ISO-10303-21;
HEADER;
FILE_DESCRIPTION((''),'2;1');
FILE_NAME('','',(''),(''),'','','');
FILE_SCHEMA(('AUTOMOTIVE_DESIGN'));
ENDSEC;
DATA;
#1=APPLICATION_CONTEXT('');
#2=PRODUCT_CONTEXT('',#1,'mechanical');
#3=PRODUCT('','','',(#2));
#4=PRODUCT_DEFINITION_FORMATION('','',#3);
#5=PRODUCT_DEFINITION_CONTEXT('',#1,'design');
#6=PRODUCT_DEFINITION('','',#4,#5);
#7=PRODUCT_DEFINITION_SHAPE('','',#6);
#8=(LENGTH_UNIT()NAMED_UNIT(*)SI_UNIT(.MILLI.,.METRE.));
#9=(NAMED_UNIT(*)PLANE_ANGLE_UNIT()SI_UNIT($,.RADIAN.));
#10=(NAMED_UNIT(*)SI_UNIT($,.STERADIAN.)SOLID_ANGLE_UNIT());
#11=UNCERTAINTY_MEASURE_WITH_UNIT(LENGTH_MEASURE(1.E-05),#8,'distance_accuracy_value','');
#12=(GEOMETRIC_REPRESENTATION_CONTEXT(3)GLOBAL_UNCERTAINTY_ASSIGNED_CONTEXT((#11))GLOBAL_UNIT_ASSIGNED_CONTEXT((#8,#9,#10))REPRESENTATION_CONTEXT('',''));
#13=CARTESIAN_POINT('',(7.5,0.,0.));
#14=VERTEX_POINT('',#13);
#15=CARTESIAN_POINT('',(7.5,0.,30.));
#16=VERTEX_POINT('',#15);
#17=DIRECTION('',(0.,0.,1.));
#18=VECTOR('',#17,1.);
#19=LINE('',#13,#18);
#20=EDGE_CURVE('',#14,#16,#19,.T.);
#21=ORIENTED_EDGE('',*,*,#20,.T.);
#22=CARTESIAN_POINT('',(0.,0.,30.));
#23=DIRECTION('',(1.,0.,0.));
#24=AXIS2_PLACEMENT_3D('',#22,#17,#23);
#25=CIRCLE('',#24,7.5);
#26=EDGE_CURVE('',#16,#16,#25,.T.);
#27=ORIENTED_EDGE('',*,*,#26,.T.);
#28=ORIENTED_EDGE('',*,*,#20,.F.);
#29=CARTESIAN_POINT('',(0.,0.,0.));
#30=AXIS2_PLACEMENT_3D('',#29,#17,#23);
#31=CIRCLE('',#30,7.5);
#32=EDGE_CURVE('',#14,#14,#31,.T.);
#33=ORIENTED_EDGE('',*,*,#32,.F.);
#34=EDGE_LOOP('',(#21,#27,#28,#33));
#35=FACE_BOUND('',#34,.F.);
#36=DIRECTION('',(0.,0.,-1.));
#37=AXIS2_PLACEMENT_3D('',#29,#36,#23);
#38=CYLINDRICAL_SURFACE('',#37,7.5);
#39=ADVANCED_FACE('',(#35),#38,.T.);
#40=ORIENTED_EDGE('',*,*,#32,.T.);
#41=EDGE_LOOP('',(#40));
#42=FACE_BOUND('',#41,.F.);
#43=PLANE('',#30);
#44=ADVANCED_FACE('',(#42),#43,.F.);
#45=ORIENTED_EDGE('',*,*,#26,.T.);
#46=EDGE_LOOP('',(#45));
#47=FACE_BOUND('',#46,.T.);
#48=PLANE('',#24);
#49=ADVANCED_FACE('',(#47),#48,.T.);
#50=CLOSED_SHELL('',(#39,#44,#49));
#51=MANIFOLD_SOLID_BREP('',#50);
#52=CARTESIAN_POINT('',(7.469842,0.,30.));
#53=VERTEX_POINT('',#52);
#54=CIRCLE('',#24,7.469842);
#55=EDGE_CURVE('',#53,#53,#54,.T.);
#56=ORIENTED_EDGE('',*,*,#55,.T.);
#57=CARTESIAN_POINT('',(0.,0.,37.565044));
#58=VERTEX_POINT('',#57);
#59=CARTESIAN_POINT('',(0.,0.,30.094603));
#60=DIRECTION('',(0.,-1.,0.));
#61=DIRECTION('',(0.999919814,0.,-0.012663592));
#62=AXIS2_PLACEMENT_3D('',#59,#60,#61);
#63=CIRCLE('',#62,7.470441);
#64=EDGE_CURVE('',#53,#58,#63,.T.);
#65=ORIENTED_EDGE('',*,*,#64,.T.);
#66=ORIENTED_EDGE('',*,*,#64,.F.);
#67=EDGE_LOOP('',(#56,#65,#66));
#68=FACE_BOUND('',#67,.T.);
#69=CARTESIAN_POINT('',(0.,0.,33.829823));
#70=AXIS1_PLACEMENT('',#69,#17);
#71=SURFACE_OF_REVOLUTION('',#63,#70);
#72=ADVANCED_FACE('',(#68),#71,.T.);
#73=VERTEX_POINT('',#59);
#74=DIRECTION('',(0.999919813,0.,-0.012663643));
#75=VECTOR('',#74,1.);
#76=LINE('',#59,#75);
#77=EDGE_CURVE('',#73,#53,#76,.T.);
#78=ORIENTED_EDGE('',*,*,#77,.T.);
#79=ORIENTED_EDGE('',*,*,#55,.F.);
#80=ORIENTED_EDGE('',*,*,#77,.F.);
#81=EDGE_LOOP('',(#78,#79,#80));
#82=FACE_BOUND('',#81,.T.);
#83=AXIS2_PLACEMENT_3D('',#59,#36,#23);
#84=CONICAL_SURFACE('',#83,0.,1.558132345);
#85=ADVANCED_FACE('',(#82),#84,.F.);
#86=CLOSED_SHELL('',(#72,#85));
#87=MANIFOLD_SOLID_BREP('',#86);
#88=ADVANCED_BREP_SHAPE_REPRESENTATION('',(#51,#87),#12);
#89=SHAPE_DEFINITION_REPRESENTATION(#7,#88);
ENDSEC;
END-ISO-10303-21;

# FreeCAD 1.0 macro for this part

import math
import FreeCAD as App
import Part
import Sketcher
Q = App.Units.Quantity

doc = App.newDocument("Part")
body = doc.addObject("PartDesign::Body", "Body")

# Sketch on XY plane
sketch1 = body.newObject("Sketcher::SketchObject", "Sketch")
sketch1.AttachmentSupport = (doc.getObject("XY_Plane"), [""])
sketch1.MapMode = "FlatFace"
sketch1.addGeometry(Part.Circle(App.Vector(0, 0, 0), App.Vector(0, 0, 1), 8), False)
sketch1.addConstraint([
    Sketcher.Constraint("Coincident", 0, 3, -1, 1),
    Sketcher.Constraint("Diameter", 0, Q("15 mm")),
])
pad1 = body.newObject("PartDesign::Pad", "Pad")
pad1.Profile = sketch1
pad1.Length = 30
body2 = doc.addObject("PartDesign::Body", "Body001")

# Sketch on XZ plane
sketch2 = body2.newObject("Sketcher::SketchObject", "Sketch001")
sketch2.AttachmentSupport = (doc.getObject("XZ_Plane001"), [""])
sketch2.MapMode = "FlatFace"
sketch2.addGeometry([
    Part.LineSegment(App.Vector(0, 30, 0), App.Vector(7, 30, 0)),
    Part.ArcOfCircle(Part.Circle(App.Vector(0, 30, 0), App.Vector(0, 0, 1), 7), math.radians(-1), math.radians(90)),
    Part.LineSegment(App.Vector(0, 38, 0), App.Vector(0, 30, 0)),
], False)
sketch2.addConstraint([
    Sketcher.Constraint("Coincident", 0, 2, 1, 1),
    Sketcher.Constraint("Coincident", 1, 2, 2, 1),
    Sketcher.Constraint("Coincident", 2, 2, 0, 1),
    Sketcher.Constraint("Vertical", 2),
    Sketcher.Constraint("Coincident", 2, 2, 1, 3),
    Sketcher.Constraint("PointOnObject", 1, 3, -2),
    Sketcher.Constraint("DistanceY", -1, 1, 0, 2, Q("30 mm")),
    Sketcher.Constraint("Radius", 1, Q("7.470441 mm")),
    Sketcher.Constraint("DistanceY", -1, 1, 1, 3, Q("30.094603 mm")),
])
revolution = body2.newObject("PartDesign::Revolution", "Revolution")
revolution.Profile = sketch2
revolution.ReferenceAxis = (sketch2, ["V_Axis"])
revolution.Angle = 360

doc.recompute()
